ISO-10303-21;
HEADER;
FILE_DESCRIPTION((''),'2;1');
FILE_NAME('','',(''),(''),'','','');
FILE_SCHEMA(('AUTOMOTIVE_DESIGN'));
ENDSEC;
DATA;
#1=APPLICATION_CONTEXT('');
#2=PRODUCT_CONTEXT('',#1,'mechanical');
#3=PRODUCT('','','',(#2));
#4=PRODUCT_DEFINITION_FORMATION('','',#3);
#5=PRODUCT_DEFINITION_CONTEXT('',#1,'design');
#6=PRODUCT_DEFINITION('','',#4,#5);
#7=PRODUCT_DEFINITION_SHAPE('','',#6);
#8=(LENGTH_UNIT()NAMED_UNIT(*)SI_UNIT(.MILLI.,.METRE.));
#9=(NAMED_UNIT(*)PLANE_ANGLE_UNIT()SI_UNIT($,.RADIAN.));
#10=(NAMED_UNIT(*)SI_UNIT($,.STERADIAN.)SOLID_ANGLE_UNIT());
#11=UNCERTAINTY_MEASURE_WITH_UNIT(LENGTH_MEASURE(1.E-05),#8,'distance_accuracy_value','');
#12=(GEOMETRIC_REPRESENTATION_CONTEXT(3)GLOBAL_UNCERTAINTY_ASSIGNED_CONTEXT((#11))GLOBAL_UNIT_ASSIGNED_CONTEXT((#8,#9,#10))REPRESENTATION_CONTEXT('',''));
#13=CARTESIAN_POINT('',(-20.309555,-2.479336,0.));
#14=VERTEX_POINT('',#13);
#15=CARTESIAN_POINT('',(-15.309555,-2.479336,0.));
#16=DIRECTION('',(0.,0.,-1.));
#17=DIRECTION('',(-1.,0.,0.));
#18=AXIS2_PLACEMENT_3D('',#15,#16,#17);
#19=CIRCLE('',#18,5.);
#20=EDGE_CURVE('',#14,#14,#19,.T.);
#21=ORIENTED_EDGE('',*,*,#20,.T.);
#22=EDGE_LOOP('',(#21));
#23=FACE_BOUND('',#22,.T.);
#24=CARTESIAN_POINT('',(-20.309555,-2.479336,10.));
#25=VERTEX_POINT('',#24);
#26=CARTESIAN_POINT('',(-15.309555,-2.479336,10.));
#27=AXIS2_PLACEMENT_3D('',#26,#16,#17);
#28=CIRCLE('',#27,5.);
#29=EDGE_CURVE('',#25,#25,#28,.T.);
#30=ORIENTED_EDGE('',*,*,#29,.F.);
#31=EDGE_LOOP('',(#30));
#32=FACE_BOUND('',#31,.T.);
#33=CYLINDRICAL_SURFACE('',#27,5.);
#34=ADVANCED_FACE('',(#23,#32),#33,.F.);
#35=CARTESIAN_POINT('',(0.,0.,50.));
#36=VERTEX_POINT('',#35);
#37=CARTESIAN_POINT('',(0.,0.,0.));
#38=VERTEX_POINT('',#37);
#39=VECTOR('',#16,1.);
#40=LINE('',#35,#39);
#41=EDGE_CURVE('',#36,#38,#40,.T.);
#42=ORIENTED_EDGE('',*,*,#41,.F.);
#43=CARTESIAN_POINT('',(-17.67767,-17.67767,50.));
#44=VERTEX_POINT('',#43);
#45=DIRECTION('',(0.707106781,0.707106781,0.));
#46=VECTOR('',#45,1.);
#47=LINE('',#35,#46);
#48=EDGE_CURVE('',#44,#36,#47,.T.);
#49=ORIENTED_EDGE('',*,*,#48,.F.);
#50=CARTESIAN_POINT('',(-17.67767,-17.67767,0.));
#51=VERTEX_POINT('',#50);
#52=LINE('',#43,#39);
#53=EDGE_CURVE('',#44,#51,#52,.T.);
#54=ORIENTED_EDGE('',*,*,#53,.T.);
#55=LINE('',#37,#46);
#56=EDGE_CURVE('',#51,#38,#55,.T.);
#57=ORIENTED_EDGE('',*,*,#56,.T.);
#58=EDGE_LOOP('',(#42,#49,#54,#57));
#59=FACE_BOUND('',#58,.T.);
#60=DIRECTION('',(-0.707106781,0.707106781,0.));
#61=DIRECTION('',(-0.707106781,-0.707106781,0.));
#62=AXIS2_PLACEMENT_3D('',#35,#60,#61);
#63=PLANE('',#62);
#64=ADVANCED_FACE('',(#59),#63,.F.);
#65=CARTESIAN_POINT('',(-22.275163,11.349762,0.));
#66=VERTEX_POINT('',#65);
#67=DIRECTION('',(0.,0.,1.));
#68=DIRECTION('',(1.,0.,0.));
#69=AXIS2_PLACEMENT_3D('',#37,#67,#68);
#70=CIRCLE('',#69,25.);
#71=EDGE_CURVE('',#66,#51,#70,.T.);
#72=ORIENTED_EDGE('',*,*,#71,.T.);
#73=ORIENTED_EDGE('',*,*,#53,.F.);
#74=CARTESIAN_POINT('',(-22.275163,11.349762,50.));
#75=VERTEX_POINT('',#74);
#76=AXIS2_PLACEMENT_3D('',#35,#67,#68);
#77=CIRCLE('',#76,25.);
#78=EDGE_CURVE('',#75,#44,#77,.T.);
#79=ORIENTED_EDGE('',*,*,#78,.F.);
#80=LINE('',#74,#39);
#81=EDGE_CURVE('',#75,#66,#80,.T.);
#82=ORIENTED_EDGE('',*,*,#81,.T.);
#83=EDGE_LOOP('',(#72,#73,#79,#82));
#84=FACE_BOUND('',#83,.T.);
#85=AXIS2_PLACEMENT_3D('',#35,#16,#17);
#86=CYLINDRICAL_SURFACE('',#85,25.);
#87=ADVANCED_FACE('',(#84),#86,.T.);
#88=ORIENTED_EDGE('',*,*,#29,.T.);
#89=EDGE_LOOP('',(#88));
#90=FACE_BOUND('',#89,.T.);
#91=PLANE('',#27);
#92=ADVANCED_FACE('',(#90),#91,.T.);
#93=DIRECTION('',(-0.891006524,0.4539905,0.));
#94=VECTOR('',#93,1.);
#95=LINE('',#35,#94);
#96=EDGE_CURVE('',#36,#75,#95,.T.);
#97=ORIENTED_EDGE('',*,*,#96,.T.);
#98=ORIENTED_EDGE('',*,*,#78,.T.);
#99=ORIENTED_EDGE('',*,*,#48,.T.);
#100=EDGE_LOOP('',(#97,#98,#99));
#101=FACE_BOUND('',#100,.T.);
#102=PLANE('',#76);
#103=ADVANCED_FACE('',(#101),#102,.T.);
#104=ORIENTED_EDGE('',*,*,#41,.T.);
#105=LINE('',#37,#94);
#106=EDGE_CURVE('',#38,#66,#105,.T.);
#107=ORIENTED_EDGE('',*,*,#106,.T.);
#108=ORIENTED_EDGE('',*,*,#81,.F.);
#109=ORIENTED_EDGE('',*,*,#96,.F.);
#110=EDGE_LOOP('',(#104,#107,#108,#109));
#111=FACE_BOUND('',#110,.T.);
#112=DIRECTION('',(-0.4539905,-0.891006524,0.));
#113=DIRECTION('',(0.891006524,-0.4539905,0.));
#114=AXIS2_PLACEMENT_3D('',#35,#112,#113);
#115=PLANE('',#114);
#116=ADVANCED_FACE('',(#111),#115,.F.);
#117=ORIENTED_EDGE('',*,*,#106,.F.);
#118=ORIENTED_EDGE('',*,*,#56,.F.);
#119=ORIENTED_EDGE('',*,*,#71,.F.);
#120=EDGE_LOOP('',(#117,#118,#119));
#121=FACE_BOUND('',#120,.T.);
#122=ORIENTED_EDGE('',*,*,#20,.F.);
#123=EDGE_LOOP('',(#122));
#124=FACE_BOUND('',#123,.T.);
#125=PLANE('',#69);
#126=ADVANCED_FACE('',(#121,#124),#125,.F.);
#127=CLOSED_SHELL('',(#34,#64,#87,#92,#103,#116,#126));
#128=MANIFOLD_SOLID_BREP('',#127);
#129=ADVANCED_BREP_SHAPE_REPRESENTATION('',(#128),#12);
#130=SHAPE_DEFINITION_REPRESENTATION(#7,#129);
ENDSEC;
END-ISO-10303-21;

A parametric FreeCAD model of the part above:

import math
import FreeCAD as App
import Part
import Sketcher
from FreeCAD import Vector
Q = App.Units.Quantity

doc = App.newDocument("Part")
body = doc.addObject("PartDesign::Body", "Body")

sketch1 = body.newObject("Sketcher::SketchObject", "Sketch")
sketch1.AttachmentSupport = (doc.getObject("XY_Plane"), [""])
sketch1.MapMode = "FlatFace"
sketch1.addGeometry(Part.LineSegment(Vector(0, 0, 0), Vector(-22, 11, 0)), False)
sketch1.addGeometry(Part.ArcOfCircle(Part.Circle(Vector(0, 0, 0), Vector(0, 0, 1), 25), math.radians(153), math.radians(225)), False)
sketch1.addGeometry(Part.LineSegment(Vector(-18, -18, 0), Vector(0, 0, 0)), False)
sketch1.addConstraint(Sketcher.Constraint("Coincident", 0, 2, 1, 1))
sketch1.addConstraint(Sketcher.Constraint("Coincident", 1, 2, 2, 1))
sketch1.addConstraint(Sketcher.Constraint("Coincident", 2, 2, 0, 1))
sketch1.addConstraint(Sketcher.Constraint("Coincident", 1, 3, -1, 1))
sketch1.addConstraint(Sketcher.Constraint("Coincident", 2, 2, -1, 1))
sketch1.addConstraint(Sketcher.Constraint("Radius", 1, Q("25 mm")))
sketch1.addConstraint(Sketcher.Constraint("Angle", 0, Q("153 deg")))
sketch1.addConstraint(Sketcher.Constraint("Angle", 2, Q("45 deg")))
pad1 = body.newObject("PartDesign::Pad", "Pad")
pad1.Profile = sketch1
pad1.Length = 50

sketch2 = body.newObject("Sketcher::SketchObject", "Sketch001")
sketch2.AttachmentSupport = (doc.getObject("XY_Plane"), [""])
sketch2.MapMode = "FlatFace"
sketch2.addGeometry(Part.Circle(Vector(-15, -2, 0), Vector(0, 0, 1), 5), False)
sketch2.addConstraint(Sketcher.Constraint("Diameter", 0, Q("10 mm")))
sketch2.addConstraint(Sketcher.Constraint("DistanceX", 0, 3, -1, 1, Q("15.309555 mm")))
sketch2.addConstraint(Sketcher.Constraint("DistanceY", 0, 3, -1, 1, Q("2.479336 mm")))
pocket1 = body.newObject("PartDesign::Pocket", "Pocket")
pocket1.Profile = sketch2
pocket1.Length = 10
pocket1.Reversed = True

doc.recompute()
